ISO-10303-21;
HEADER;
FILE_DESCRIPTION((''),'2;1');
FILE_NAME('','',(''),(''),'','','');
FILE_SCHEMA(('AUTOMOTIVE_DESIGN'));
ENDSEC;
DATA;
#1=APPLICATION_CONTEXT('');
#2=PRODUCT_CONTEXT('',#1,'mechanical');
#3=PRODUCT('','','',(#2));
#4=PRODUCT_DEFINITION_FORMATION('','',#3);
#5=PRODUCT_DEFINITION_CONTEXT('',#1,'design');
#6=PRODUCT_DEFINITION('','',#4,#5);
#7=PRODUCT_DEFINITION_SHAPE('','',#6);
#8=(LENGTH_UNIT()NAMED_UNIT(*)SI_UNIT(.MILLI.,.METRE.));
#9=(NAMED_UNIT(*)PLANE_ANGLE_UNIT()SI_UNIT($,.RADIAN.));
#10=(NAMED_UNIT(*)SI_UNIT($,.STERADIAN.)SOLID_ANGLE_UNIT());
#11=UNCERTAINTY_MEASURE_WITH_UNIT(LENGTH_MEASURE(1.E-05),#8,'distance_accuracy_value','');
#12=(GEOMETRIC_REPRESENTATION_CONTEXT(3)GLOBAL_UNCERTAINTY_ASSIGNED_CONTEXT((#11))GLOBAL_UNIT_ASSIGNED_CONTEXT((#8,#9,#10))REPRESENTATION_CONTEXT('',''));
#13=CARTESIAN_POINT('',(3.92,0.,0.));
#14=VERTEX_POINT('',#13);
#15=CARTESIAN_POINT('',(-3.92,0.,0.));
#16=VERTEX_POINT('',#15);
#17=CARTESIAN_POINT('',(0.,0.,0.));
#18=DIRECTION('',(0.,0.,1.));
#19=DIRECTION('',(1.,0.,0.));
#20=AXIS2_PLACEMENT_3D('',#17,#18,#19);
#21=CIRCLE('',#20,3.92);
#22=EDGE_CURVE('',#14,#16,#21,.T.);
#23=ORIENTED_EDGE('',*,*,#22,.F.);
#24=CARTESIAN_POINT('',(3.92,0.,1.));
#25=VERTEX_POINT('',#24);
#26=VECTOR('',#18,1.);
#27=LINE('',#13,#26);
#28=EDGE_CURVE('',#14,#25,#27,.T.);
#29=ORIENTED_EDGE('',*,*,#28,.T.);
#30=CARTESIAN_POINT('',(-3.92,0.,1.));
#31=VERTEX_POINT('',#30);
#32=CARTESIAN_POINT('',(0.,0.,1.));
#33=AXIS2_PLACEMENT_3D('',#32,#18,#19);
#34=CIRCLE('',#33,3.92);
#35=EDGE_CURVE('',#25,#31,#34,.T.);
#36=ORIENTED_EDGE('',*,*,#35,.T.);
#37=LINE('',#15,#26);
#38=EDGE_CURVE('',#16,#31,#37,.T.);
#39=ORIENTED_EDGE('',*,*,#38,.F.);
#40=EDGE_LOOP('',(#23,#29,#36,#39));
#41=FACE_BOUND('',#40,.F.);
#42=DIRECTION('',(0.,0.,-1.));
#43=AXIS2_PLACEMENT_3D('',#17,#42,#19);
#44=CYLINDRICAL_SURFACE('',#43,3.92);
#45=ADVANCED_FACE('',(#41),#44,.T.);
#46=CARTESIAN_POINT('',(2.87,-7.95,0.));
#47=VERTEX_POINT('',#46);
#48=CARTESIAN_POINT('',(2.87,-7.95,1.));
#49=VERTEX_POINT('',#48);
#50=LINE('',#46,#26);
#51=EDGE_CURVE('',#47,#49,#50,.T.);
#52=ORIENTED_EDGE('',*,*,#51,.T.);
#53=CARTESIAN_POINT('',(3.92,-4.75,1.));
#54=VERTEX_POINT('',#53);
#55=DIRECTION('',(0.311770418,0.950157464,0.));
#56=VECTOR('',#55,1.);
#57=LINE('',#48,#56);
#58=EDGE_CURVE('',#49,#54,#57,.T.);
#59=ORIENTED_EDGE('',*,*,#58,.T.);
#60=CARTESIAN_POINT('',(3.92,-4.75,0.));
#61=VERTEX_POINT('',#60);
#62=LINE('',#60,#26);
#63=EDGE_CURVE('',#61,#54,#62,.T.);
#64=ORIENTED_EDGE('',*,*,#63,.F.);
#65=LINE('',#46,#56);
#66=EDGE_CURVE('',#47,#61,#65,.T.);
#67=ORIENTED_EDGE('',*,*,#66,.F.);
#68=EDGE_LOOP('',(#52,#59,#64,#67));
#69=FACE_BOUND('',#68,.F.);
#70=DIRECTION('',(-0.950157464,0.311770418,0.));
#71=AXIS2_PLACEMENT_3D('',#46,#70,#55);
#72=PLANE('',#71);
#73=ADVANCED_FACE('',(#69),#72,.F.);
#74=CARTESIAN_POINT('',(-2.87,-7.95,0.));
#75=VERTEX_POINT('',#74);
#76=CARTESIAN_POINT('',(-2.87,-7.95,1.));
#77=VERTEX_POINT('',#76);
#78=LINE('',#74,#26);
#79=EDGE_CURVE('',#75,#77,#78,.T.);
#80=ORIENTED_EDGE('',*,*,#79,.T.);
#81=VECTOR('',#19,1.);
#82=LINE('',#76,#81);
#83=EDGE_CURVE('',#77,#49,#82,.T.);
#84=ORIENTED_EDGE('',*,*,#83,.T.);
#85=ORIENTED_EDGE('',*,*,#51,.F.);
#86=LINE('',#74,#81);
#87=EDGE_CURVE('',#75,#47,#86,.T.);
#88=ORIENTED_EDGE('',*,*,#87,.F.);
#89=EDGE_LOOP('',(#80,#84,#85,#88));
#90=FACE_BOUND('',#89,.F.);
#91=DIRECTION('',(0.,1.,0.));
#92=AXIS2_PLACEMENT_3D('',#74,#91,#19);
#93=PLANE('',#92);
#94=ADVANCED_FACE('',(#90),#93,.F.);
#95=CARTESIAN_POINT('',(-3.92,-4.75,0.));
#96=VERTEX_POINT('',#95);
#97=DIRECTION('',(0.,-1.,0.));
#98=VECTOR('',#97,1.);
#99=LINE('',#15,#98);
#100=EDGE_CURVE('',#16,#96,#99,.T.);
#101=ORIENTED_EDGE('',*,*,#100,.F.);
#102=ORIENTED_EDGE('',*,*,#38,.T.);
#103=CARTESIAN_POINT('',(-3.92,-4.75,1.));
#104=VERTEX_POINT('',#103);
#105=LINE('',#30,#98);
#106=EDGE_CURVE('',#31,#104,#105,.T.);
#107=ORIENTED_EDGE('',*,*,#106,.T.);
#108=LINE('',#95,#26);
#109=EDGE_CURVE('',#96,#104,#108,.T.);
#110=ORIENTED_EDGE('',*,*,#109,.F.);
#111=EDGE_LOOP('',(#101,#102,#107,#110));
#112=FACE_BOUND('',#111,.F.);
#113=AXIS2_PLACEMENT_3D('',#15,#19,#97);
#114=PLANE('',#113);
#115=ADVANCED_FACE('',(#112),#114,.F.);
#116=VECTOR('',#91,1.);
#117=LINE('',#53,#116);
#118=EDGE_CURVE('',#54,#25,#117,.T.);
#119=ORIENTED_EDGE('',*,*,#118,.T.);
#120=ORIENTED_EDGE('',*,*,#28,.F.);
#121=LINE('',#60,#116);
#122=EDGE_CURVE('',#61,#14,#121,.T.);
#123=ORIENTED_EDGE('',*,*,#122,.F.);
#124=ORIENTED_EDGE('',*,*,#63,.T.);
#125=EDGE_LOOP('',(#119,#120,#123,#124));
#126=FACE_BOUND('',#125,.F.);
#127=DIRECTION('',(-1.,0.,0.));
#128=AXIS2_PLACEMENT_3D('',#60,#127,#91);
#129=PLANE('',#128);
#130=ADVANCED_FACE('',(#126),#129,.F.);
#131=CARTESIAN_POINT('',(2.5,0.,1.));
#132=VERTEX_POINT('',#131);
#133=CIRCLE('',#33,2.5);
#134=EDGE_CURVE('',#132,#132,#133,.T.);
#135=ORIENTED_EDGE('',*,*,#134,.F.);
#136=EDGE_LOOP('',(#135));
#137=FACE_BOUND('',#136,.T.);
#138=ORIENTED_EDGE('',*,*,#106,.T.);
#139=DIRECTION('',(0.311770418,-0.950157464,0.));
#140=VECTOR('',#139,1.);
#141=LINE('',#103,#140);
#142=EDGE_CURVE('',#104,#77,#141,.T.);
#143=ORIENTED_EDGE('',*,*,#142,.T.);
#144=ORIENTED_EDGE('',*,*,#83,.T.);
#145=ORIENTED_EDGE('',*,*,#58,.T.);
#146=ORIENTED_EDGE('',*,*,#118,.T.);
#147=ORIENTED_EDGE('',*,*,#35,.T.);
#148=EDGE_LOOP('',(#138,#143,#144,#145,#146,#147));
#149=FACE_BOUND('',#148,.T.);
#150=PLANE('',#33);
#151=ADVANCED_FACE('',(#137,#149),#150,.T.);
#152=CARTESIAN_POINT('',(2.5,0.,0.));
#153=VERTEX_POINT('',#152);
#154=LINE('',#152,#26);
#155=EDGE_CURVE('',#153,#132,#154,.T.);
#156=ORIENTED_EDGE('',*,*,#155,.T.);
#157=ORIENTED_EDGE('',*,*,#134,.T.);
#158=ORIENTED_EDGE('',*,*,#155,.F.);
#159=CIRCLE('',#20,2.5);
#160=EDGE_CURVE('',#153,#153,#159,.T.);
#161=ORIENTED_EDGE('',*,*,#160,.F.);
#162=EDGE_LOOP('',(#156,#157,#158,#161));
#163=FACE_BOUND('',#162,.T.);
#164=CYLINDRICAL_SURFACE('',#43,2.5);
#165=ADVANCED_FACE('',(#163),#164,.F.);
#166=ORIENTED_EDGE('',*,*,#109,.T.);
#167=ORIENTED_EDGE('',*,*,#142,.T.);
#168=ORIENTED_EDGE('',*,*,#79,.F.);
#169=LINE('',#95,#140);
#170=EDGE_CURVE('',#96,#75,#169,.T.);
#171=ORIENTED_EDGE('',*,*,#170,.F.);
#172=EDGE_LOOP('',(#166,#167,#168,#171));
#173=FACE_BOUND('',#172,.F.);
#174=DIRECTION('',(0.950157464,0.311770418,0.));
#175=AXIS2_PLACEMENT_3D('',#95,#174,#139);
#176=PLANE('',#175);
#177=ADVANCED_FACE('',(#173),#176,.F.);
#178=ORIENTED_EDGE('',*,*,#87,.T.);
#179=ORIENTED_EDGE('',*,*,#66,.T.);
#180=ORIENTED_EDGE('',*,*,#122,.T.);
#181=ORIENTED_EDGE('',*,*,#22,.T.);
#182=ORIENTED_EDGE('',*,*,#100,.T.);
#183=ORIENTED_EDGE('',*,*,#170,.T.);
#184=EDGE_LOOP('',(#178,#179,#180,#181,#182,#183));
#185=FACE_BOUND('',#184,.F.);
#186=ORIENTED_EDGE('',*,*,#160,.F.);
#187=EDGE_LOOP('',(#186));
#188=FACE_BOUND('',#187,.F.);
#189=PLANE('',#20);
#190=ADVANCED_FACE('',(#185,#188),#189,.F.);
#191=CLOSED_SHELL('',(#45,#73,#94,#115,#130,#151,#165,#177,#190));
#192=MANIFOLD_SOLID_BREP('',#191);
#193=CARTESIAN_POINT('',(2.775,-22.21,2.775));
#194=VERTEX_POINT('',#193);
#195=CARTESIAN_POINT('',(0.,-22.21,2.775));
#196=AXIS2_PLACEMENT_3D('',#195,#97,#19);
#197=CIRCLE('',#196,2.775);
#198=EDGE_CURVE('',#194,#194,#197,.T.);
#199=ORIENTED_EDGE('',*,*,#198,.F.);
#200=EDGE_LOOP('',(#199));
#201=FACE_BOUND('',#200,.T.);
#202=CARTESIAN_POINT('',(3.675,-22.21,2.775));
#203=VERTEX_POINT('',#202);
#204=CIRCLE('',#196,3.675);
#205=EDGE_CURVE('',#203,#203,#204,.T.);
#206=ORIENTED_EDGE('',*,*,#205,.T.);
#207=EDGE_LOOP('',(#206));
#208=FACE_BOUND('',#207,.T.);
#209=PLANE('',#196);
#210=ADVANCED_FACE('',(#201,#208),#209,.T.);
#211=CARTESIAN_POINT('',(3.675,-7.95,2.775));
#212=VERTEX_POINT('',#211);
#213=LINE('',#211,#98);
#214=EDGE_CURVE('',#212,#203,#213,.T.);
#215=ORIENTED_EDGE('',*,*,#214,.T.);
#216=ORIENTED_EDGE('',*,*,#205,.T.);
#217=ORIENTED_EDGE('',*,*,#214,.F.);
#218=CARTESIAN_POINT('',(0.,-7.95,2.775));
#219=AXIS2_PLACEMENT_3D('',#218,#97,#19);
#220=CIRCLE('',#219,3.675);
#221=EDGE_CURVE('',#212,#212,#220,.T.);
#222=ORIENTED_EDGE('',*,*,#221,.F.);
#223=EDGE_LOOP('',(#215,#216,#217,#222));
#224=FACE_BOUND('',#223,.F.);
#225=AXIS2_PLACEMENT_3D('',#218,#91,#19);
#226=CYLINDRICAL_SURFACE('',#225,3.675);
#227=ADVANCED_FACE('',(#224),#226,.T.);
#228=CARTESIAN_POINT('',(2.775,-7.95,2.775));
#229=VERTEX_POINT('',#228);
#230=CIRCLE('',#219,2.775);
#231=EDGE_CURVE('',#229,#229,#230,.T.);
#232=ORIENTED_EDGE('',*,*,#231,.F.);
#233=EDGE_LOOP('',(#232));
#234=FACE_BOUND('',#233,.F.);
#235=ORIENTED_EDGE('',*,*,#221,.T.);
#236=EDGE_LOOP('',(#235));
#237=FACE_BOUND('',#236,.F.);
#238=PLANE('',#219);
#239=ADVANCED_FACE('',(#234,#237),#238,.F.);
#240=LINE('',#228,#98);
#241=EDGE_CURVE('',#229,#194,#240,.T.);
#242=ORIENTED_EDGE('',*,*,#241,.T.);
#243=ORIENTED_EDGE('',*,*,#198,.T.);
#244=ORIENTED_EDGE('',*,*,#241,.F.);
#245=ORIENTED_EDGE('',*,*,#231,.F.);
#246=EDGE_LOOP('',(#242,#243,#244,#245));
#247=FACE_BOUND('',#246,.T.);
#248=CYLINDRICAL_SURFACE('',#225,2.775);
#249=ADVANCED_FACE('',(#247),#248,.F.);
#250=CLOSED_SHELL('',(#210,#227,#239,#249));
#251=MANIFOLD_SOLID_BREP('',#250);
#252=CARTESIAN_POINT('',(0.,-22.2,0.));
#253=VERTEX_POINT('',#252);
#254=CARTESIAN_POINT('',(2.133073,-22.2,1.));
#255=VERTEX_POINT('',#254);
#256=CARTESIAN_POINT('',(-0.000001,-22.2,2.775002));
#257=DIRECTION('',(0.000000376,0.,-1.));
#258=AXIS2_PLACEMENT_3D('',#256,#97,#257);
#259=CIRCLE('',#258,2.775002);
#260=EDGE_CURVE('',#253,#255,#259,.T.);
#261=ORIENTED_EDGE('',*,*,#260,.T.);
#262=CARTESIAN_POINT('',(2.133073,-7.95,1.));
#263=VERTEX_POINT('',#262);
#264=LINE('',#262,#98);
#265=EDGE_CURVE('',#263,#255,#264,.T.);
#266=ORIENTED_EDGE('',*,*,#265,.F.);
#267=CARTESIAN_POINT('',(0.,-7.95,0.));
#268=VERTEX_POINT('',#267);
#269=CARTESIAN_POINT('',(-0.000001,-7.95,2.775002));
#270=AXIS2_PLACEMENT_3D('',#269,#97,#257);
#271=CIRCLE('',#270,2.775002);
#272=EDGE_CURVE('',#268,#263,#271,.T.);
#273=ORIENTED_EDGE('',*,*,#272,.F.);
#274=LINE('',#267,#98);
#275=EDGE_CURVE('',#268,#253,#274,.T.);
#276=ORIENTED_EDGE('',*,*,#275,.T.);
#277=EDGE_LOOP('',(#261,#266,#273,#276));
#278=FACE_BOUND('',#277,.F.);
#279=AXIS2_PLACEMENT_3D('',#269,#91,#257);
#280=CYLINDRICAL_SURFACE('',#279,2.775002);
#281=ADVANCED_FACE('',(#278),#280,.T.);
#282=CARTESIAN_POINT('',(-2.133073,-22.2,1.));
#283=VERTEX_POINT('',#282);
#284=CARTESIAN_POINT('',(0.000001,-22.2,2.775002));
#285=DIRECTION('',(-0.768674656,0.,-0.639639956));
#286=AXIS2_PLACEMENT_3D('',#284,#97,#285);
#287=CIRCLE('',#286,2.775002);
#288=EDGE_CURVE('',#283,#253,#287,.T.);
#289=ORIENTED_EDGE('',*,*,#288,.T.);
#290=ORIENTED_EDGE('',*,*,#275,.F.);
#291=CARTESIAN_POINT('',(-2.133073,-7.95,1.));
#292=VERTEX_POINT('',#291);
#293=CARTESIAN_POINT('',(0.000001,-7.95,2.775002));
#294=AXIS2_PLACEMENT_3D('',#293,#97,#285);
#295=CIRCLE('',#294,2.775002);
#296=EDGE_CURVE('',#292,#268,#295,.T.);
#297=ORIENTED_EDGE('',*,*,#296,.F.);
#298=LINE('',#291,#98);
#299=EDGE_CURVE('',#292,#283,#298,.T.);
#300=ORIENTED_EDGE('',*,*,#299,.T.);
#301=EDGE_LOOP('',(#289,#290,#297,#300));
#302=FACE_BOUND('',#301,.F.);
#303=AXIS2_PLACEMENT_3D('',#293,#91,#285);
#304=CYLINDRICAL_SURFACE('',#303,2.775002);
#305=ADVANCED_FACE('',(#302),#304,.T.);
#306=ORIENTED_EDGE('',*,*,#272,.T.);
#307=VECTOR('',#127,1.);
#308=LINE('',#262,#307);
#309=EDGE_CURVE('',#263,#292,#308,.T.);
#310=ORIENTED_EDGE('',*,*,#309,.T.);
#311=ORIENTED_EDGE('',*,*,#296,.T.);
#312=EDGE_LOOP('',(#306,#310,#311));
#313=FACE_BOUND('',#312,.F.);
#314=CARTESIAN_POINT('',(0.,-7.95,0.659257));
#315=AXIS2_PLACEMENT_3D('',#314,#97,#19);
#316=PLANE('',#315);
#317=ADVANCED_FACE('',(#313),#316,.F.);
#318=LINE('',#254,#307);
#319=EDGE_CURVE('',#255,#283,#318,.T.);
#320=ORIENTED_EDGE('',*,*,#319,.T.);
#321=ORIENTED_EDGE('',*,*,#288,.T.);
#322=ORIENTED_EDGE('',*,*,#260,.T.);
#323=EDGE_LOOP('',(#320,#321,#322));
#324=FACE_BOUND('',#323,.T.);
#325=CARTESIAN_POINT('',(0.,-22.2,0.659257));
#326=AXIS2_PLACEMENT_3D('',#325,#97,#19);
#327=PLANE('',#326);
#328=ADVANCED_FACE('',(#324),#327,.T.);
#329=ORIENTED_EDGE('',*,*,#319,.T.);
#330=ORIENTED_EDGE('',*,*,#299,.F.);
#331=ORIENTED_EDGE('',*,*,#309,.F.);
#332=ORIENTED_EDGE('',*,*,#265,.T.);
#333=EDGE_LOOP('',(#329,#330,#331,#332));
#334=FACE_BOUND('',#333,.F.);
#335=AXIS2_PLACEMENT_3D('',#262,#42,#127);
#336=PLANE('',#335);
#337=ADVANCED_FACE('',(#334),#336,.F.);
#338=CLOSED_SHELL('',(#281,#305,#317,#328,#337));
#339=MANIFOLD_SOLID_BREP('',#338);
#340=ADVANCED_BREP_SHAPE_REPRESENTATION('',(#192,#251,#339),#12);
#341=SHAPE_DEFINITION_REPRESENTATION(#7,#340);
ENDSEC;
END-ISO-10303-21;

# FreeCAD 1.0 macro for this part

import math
import FreeCAD as App
import Part
import Sketcher

V = App.Vector
Q = App.Units.Quantity

doc = App.newDocument("Part")
body = doc.addObject("PartDesign::Body", "Body")

# Sketch on XY plane
sketch1 = body.newObject("Sketcher::SketchObject", "Sketch")
sketch1.AttachmentSupport = (doc.getObject("XY_Plane"), [""])
sketch1.MapMode = "FlatFace"
sketch1.addGeometry([
    Part.ArcOfCircle(Part.Circle(V(0, 0, 0), V(0, 0, 1), 3.9), math.radians(0), math.radians(180)),  # 0
    Part.LineSegment(V(-3.9, 0, 0), V(-3.9, -4.8, 0)),  # 1
    Part.LineSegment(V(-3.9, -4.8, 0), V(-2.9, -8, 0)),  # 2
    Part.LineSegment(V(-2.9, -8, 0), V(2.9, -8, 0)),  # 3
    Part.LineSegment(V(2.9, -8, 0), V(3.9, -4.8, 0)),  # 4
    Part.LineSegment(V(3.9, -4.8, 0), V(3.9, 0, 0)),  # 5
    Part.Circle(V(0, 0, 0), V(0, 0, 1), 2.5),  # 6
], False)
sketch1.addConstraint([
    Sketcher.Constraint("Tangent", 0, 2, 1, 1),
    Sketcher.Constraint("Coincident", 1, 2, 2, 1),
    Sketcher.Constraint("Coincident", 2, 2, 3, 1),
    Sketcher.Constraint("Coincident", 3, 2, 4, 1),
    Sketcher.Constraint("Coincident", 4, 2, 5, 1),
    Sketcher.Constraint("Tangent", 5, 2, 0, 1),
    Sketcher.Constraint("Vertical", 1),
    Sketcher.Constraint("Horizontal", 3),
    Sketcher.Constraint("Vertical", 5),
    Sketcher.Constraint("Coincident", 0, 3, -1, 1),
    Sketcher.Constraint("Coincident", 6, 3, -1, 1),
    Sketcher.Constraint("Horizontal", 1, 2, 4, 2),
    Sketcher.Constraint("Equal", 2, 4),
    Sketcher.Constraint("Diameter", 6, Q("5 mm")),
    Sketcher.Constraint("Radius", 0, Q("3.92 mm")),
    Sketcher.Constraint("DistanceX", 3, 1, 3, 2, Q("5.74 mm")),
    Sketcher.Constraint("DistanceY", 1, 2, 1, 1, Q("4.75 mm")),
    Sketcher.Constraint("DistanceY", 2, 2, 1, 2, Q("3.2 mm")),
])
pad1 = body.newObject("PartDesign::Pad", "Pad")
pad1.Profile = sketch1
pad1.Length = 1
body2 = doc.addObject("PartDesign::Body", "Body001")

# Sketch on XZ plane
sketch2 = body2.newObject("Sketcher::SketchObject", "Sketch001")
sketch2.AttachmentSupport = (doc.getObject("XZ_Plane001"), [""])
sketch2.MapMode = "FlatFace"
sketch2.AttachmentOffset = App.Placement(V(0, 0, 7.95), App.Rotation())
sketch2.addGeometry([
    Part.Circle(V(0, 2.8, 0), V(0, 0, 1), 3.7),
    Part.Circle(V(0, 2.8, 0), V(0, 0, 1), 2.8),
], False)
sketch2.addConstraint([
    Sketcher.Constraint("Coincident", 1, 3, 0, 3),
    Sketcher.Constraint("PointOnObject", 0, 3, -2),
    Sketcher.Constraint("Diameter", 0, Q("7.35 mm")),
    Sketcher.Constraint("Diameter", 1, Q("5.55 mm")),
    Sketcher.Constraint("DistanceY", -1, 1, 0, 3, Q("2.775 mm")),
])
pad2 = body2.newObject("PartDesign::Pad", "Pad001")
pad2.Profile = sketch2
pad2.Length = 14.26
body3 = doc.addObject("PartDesign::Body", "Body002")

# Sketch on XZ plane
sketch3 = body3.newObject("Sketcher::SketchObject", "Sketch002")
sketch3.AttachmentSupport = (doc.getObject("XZ_Plane002"), [""])
sketch3.MapMode = "FlatFace"
sketch3.AttachmentOffset = App.Placement(V(0, 0, 7.95), App.Rotation())
sketch3.addGeometry([
    Part.ArcOfCircle(Part.Circle(V(0, 2.8, 0), V(0, 0, 1), 2.8), math.radians(-140), math.radians(-90)),
    Part.ArcOfCircle(Part.Circle(V(0, 2.8, 0), V(0, 0, 1), 2.8), math.radians(-90), math.radians(-40)),
    Part.LineSegment(V(2.1, 1, 0), V(-2.1, 1, 0)),
], False)
sketch3.addConstraint([
    Sketcher.Constraint("Tangent", 0, 2, 1, 1),
    Sketcher.Constraint("Coincident", 1, 2, 2, 1),
    Sketcher.Constraint("Coincident", 2, 2, 0, 1),
    Sketcher.Constraint("Horizontal", 2),
    Sketcher.Constraint("Coincident", 0, 2, -1, 1),
    Sketcher.Constraint("Equal", 0, 1),
    Sketcher.Constraint("PointOnObject", 0, 3, -2),
    Sketcher.Constraint("DistanceY", -1, 1, 1, 2, Q("1 mm")),
    Sketcher.Constraint("Radius", 0, Q("2.775002 mm")),
])
pad3 = body3.newObject("PartDesign::Pad", "Pad002")
pad3.Profile = sketch3
pad3.Length = 14.25

doc.recompute()
